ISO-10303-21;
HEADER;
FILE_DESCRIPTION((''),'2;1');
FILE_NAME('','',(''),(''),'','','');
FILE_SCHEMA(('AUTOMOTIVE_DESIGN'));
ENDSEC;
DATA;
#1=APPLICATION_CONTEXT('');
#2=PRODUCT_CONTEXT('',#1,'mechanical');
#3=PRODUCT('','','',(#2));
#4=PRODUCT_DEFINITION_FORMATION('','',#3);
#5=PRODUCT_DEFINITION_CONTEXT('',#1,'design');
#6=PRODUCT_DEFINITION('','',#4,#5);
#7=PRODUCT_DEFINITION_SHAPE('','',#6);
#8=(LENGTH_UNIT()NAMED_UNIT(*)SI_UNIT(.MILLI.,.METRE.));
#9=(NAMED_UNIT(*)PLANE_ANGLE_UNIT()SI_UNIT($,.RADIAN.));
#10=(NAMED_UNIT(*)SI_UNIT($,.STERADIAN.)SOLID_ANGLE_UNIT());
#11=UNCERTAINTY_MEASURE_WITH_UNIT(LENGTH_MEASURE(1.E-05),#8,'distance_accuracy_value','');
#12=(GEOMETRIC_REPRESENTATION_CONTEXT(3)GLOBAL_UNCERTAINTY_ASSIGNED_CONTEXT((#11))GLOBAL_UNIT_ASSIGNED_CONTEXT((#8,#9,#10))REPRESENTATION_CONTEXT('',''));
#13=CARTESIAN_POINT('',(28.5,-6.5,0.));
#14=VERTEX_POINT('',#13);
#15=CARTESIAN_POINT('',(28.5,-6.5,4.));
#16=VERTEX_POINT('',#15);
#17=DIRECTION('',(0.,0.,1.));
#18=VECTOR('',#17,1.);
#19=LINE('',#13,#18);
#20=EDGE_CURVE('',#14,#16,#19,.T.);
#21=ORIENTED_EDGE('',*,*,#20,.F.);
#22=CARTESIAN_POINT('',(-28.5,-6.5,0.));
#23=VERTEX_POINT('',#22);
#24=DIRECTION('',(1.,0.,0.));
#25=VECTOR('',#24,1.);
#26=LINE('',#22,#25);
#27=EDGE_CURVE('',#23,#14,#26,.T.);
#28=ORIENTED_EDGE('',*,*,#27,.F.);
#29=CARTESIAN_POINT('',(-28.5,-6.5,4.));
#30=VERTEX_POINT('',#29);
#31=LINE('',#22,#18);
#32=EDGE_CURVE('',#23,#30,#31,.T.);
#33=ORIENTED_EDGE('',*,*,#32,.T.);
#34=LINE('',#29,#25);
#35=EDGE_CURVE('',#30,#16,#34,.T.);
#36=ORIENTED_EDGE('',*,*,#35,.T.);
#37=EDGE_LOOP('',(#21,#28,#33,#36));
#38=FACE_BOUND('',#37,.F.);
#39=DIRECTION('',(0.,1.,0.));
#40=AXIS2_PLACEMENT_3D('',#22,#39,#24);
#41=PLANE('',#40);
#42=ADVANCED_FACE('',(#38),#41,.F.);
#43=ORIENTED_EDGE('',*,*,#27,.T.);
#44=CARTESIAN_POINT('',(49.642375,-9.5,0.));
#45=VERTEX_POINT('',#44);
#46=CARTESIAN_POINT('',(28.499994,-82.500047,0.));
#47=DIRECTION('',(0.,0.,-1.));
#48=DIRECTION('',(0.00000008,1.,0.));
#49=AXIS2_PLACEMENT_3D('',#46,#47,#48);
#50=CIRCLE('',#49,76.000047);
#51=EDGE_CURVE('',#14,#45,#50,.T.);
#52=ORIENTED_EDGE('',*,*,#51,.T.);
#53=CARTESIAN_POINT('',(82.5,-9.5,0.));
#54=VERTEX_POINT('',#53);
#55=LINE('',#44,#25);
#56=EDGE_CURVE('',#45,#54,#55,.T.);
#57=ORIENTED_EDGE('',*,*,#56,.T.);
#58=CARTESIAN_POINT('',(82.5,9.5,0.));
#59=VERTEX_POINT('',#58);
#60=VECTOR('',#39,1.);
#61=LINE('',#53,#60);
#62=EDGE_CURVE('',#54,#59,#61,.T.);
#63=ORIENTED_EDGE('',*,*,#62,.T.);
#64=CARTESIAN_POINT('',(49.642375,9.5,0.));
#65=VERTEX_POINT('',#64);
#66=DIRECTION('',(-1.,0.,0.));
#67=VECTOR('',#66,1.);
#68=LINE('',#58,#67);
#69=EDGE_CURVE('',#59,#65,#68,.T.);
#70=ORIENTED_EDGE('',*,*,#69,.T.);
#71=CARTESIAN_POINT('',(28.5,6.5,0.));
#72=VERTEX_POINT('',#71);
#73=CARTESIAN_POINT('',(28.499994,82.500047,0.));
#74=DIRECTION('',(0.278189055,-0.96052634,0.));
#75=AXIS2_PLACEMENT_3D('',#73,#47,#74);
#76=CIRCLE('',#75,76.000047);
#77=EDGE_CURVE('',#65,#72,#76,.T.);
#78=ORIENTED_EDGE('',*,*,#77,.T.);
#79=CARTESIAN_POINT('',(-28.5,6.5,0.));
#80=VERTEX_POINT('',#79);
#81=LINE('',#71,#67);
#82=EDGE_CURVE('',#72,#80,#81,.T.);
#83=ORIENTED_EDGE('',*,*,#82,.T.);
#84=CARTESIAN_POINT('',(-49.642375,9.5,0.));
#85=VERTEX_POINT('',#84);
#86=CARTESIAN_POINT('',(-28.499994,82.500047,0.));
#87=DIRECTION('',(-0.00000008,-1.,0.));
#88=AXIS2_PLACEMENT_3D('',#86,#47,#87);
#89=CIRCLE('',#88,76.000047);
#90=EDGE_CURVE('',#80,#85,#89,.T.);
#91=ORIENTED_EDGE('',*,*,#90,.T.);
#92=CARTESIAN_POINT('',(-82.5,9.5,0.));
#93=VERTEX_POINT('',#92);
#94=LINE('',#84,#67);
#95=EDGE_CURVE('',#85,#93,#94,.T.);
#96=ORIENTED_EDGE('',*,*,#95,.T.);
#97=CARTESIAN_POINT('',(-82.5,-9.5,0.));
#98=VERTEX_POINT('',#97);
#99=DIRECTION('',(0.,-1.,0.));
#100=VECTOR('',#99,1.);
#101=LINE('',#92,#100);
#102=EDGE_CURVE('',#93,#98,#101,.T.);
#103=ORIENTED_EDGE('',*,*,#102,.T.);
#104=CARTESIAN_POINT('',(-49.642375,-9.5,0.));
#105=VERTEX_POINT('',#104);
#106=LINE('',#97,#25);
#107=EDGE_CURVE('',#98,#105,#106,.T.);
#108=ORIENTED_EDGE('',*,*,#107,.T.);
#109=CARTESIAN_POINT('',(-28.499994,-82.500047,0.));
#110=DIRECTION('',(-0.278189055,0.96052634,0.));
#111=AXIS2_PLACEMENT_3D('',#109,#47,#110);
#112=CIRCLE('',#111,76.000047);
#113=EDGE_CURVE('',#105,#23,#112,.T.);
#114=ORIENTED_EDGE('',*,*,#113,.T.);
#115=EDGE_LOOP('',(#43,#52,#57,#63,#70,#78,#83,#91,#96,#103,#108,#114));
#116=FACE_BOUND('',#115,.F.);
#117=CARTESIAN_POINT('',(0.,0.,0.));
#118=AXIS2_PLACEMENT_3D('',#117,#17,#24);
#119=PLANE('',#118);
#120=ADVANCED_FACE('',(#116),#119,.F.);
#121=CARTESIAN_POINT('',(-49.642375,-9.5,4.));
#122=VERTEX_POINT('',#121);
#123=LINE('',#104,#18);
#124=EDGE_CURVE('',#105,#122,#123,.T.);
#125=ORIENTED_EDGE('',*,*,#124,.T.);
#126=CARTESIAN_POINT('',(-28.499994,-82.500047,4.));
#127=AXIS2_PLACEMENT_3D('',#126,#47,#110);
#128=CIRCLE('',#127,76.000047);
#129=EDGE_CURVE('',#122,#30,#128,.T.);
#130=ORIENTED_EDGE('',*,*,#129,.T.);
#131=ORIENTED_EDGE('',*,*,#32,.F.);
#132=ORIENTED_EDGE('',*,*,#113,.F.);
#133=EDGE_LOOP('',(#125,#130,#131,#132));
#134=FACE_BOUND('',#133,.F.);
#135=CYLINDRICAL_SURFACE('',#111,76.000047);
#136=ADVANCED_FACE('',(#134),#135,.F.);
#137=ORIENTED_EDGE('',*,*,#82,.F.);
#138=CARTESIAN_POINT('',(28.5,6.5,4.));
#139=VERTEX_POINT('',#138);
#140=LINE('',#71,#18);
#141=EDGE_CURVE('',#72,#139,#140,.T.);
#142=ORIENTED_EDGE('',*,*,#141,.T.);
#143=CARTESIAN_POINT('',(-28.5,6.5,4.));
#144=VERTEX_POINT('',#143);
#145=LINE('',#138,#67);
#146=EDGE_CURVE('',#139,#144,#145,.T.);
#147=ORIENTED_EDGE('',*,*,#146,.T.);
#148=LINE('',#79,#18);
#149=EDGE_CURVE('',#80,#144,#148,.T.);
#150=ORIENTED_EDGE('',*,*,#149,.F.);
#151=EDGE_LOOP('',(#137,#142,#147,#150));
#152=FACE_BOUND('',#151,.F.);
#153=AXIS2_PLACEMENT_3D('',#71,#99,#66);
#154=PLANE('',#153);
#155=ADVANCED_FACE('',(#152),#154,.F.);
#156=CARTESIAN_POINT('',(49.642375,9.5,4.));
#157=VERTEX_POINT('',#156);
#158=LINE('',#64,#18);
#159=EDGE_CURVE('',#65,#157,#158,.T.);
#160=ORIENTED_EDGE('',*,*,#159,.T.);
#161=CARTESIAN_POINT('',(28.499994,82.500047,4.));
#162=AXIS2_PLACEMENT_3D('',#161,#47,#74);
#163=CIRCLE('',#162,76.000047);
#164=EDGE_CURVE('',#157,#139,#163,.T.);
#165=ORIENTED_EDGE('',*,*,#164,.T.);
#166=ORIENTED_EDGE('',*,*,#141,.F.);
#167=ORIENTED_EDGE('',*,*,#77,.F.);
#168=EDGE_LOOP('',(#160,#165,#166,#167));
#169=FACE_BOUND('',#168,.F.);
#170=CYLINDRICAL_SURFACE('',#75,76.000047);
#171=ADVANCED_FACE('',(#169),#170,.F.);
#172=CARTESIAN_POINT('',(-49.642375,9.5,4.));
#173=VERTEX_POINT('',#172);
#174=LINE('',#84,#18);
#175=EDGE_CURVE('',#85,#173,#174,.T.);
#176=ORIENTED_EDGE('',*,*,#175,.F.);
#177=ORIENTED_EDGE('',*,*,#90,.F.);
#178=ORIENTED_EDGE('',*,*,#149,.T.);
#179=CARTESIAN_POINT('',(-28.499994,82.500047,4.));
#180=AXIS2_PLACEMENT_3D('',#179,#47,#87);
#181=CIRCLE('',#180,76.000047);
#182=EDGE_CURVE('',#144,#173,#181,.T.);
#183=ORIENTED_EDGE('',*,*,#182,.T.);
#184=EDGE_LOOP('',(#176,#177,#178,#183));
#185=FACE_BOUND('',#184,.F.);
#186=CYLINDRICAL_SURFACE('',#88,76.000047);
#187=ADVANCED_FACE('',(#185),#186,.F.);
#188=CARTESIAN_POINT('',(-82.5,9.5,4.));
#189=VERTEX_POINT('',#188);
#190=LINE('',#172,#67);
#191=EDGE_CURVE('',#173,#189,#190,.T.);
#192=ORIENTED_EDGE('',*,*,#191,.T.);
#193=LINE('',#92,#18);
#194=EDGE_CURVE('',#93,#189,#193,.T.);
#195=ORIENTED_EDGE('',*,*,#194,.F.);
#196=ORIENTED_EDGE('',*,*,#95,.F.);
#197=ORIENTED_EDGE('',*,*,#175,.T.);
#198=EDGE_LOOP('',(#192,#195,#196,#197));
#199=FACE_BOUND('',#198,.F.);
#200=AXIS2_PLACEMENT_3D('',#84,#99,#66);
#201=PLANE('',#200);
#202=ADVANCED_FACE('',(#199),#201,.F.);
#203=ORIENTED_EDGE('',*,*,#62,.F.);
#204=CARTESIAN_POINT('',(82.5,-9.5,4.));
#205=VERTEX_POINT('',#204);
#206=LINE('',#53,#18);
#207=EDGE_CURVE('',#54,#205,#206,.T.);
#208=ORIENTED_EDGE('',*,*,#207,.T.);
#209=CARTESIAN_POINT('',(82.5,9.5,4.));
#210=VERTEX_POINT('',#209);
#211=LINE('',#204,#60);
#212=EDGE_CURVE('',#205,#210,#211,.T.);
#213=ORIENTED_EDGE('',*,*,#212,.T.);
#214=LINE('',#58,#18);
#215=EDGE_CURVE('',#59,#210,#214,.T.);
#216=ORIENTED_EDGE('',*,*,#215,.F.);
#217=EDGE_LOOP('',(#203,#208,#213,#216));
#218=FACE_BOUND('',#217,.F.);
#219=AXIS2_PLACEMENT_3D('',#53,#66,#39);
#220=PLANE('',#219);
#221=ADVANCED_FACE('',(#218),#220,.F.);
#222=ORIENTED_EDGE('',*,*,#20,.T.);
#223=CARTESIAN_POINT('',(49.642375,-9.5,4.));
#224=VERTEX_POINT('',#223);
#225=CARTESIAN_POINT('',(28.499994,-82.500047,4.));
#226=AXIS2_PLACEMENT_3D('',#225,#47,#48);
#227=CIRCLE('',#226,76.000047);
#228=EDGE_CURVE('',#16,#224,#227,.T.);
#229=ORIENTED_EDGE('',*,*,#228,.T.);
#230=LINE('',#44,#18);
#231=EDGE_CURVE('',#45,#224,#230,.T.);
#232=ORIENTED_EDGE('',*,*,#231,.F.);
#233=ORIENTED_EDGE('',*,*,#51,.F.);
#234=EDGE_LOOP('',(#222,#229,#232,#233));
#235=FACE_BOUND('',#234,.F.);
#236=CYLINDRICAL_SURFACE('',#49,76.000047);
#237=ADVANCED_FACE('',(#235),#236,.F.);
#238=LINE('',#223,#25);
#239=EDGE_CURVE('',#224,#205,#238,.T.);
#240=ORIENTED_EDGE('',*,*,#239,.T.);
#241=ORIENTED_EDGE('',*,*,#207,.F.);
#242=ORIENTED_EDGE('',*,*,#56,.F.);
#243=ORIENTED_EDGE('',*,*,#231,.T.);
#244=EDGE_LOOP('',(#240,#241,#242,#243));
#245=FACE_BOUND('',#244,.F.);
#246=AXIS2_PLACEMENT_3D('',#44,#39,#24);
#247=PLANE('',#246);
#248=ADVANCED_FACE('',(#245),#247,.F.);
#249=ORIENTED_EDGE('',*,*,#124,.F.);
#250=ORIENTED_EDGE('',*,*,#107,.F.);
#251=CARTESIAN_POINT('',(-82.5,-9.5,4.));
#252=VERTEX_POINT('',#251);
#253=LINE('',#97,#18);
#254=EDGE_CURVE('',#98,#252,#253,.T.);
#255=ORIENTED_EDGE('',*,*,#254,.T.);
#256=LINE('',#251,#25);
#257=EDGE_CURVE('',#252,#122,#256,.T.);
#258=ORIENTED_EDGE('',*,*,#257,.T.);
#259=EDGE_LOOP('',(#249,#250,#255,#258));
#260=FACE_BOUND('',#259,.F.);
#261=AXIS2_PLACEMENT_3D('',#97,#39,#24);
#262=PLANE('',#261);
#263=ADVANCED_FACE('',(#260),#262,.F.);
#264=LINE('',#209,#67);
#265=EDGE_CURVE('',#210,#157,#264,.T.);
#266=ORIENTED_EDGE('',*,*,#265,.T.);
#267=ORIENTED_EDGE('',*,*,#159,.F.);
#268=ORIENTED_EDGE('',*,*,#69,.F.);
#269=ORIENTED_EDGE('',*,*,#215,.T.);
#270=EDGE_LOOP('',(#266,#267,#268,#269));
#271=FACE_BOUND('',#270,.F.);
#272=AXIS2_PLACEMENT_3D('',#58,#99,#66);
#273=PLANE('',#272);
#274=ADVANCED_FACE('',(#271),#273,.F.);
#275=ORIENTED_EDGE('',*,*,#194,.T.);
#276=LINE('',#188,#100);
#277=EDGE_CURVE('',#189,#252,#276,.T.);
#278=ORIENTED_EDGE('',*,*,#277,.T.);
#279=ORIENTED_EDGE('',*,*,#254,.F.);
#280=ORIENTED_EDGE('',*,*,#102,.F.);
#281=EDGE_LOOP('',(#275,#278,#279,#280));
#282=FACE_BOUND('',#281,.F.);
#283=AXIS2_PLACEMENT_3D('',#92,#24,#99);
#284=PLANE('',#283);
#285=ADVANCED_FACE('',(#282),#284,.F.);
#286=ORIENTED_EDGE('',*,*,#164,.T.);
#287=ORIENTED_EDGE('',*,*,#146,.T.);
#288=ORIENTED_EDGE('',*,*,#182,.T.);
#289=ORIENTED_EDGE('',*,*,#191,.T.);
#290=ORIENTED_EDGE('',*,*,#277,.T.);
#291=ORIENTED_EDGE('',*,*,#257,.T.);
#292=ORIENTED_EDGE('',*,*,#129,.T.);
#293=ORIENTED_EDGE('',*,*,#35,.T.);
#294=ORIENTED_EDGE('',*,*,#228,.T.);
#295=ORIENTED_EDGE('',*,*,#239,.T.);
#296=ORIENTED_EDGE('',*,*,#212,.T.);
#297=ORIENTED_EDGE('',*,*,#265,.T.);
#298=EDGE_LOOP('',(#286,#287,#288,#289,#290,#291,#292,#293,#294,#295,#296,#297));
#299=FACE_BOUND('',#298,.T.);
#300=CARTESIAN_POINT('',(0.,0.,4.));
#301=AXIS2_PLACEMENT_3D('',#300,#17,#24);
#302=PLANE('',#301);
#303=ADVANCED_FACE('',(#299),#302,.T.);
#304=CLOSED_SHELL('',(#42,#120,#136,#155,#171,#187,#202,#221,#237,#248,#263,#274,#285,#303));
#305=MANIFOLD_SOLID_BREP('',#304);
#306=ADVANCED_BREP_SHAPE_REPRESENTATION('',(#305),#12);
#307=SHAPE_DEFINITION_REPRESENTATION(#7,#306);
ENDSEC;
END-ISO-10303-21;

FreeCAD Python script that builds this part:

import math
import FreeCAD as App
import Part
import Sketcher

V = App.Vector
Q = App.Units.Quantity

doc = App.newDocument("Part")
params = doc.addObject("Spreadsheet::Sheet", "Params")
for row, (alias, value) in enumerate([
    ("sketch1_width", "57 mm"),
    ("sketch1_height", "19 mm"),
    ("pad1_length", "4 mm"),
], start=1):
    params.set(f"A{row}", alias)
    params.set(f"B{row}", "=" + value)
    params.setAlias(f"B{row}", alias)

body = doc.addObject("PartDesign::Body", "Body")

# Sketch on XY plane
sketch1 = doc.addObject("Sketcher::SketchObject", "Sketch")
body.addObject(sketch1)
sketch1.AttachmentSupport = (doc.XY_Plane, [""])
sketch1.MapMode = "FlatFace"
sketch1.addGeometry([
    Part.LineSegment(V(28, 6, 0), V(-28, 6, 0)),  # 0
    Part.ArcOfCircle(Part.Circle(V(-28, 83, 0), V(0, 0, 1), 76), math.radians(-106.15), math.radians(-90)),  # 1
    Part.LineSegment(V(-50, 10, 0), V(-82, 10, 0)),  # 2
    Part.LineSegment(V(-82, 10, 0), V(-82, -10, 0)),  # 3
    Part.LineSegment(V(-82, -10, 0), V(-50, -10, 0)),  # 4
    Part.ArcOfCircle(Part.Circle(V(-28, -83, 0), V(0, 0, 1), 76), math.radians(90), math.radians(106.15)),  # 5
    Part.LineSegment(V(-28, -6, 0), V(28, -6, 0)),  # 6
    Part.ArcOfCircle(Part.Circle(V(28, -83, 0), V(0, 0, 1), 76), math.radians(73.85), math.radians(90)),  # 7
    Part.LineSegment(V(50, -10, 0), V(82, -10, 0)),  # 8
    Part.LineSegment(V(82, -10, 0), V(82, 10, 0)),  # 9
    Part.LineSegment(V(82, 10, 0), V(50, 10, 0)),  # 10
    Part.ArcOfCircle(Part.Circle(V(28, 83, 0), V(0, 0, 1), 76), math.radians(-90), math.radians(-73.85)),  # 11
], False)
sketch1.addConstraint([
    Sketcher.Constraint("Tangent", 0, 2, 1, 2),
    Sketcher.Constraint("Coincident", 1, 1, 2, 1),
    Sketcher.Constraint("Coincident", 2, 2, 3, 1),
    Sketcher.Constraint("Coincident", 3, 2, 4, 1),
    Sketcher.Constraint("Coincident", 4, 2, 5, 2),
    Sketcher.Constraint("Tangent", 5, 1, 6, 1),
    Sketcher.Constraint("Tangent", 6, 2, 7, 2),
    Sketcher.Constraint("Coincident", 7, 1, 8, 1),
    Sketcher.Constraint("Coincident", 8, 2, 9, 1),
    Sketcher.Constraint("Coincident", 9, 2, 10, 1),
    Sketcher.Constraint("Coincident", 10, 2, 11, 2),
    Sketcher.Constraint("Tangent", 11, 1, 0, 1),
    Sketcher.Constraint("Horizontal", 0),
    Sketcher.Constraint("Horizontal", 2),
    Sketcher.Constraint("Vertical", 3),
    Sketcher.Constraint("Horizontal", 4),
    Sketcher.Constraint("Horizontal", 6),
    Sketcher.Constraint("Horizontal", 8),
    Sketcher.Constraint("Vertical", 9),
    Sketcher.Constraint("Horizontal", 10),
    Sketcher.Constraint("Equal", 1, 5),
    Sketcher.Constraint("Equal", 5, 7),
    Sketcher.Constraint("Equal", 7, 11),
    Sketcher.Constraint("Symmetric", 1, 3, 7, 3, -1, 1),
    Sketcher.Constraint("Symmetric", 2, 2, 8, 2, -1, 1),
    Sketcher.Constraint("Symmetric", 4, 2, 10, 2, -1, 1),
    Sketcher.Constraint("Symmetric", 4, 2, 7, 1, -2),
    Sketcher.Constraint("DistanceX", 0, 2, 0, 1, Q("57 mm")),
    Sketcher.Constraint("DistanceY", 3, 2, 3, 1, Q("19 mm")),
    Sketcher.Constraint("DistanceY", 0, 2, 1, 1, Q("3 mm")),
    Sketcher.Constraint("DistanceX", 2, 2, 0, 2, Q("54 mm")),
    Sketcher.Constraint("Radius", 1, Q("76.000047 mm")),
])
sketch1.setExpression("Constraints[27]", "Params.sketch1_width")
sketch1.setExpression("Constraints[28]", "Params.sketch1_height")
pad1 = doc.addObject("PartDesign::Pad", "Pad")
body.addObject(pad1)
pad1.Profile = sketch1
pad1.setExpression("Length", "Params.pad1_length")

doc.recompute()
